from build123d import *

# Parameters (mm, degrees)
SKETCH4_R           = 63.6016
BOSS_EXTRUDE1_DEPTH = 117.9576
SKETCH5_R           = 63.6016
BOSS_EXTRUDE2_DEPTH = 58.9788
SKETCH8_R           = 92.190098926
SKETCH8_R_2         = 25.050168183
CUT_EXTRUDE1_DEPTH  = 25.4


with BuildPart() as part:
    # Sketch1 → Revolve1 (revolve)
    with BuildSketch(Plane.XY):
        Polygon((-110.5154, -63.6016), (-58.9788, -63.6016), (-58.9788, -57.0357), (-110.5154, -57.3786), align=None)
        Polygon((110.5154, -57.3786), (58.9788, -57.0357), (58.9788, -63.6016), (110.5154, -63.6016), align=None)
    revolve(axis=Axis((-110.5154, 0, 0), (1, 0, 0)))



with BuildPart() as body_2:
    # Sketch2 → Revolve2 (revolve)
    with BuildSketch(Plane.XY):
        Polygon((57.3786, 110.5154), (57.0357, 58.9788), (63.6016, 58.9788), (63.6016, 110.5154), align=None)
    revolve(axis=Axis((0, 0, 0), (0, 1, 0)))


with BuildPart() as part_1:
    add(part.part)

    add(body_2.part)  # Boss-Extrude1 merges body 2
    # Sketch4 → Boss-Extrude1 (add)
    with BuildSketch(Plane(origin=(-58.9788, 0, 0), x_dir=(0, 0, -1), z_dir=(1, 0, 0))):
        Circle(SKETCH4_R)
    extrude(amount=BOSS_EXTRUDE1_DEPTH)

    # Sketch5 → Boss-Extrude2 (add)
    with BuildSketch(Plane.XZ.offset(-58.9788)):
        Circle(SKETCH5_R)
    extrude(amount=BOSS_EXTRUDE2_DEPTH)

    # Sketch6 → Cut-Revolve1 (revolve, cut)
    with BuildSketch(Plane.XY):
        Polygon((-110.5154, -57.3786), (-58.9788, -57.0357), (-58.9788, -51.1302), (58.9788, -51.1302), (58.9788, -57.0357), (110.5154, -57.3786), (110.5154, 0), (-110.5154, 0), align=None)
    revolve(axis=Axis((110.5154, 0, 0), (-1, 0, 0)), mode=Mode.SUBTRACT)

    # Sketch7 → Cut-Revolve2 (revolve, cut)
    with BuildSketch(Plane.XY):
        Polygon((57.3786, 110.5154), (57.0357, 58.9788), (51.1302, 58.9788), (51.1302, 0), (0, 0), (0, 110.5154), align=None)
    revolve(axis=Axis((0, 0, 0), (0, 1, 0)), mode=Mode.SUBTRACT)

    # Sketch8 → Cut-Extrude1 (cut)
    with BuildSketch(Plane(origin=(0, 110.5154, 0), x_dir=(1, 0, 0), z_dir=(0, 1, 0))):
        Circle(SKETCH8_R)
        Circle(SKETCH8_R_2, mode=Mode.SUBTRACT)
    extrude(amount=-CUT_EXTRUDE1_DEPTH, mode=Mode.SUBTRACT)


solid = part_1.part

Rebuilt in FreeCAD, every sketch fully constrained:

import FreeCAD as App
import Part
import Sketcher
from FreeCAD import Vector
Q = App.Units.Quantity


def add_polygon(sketch, points):
    """Adds a closed chain of lines whose ends are joined by coincident constraints."""
    first, n = sketch.GeometryCount, len(points)
    for a, b in zip(points, points[1:] + points[:1]):
        sketch.addGeometry(Part.LineSegment(App.Vector(*a, 0), App.Vector(*b, 0)), False)
    for i in range(n):
        sketch.addConstraint(Sketcher.Constraint("Coincident", first + i, 2, first + (i + 1) % n, 1))

doc = App.newDocument("Part")
body = doc.addObject("PartDesign::Body", "Body")
body.AllowCompound = True

sketch1 = doc.addObject("Sketcher::SketchObject", "Sketch")
body.addObject(sketch1)
sketch1.AttachmentSupport = (doc.XY_Plane, [""])
sketch1.MapMode = "FlatFace"
add_polygon(sketch1, [(-111, -64), (-59, -64), (-59, -57), (-111, -57)])
add_polygon(sketch1, [(111, -57), (59, -57), (59, -64), (111, -64)])
sketch1.addConstraint([
    Sketcher.Constraint("Horizontal", 0),
    Sketcher.Constraint("Vertical", 1),
    Sketcher.Constraint("Vertical", 3),
    Sketcher.Constraint("Vertical", 5),
    Sketcher.Constraint("Horizontal", 6),
    Sketcher.Constraint("Vertical", 7),
    Sketcher.Constraint("Symmetric", 1, 2, 4, 2, -2),
    Sketcher.Constraint("Symmetric", 3, 2, 6, 2, -2),
    Sketcher.Constraint("Horizontal", 2, 2, 7, 2),
    Sketcher.Constraint("DistanceX", 0, 1, 0, 2, Q("2.029 in")),
    Sketcher.Constraint("DistanceY", 3, 2, 3, 1, Q("0.245 in")),
    Sketcher.Constraint("DistanceY", 1, 1, 1, 2, Q("0.2585 in")),
    Sketcher.Constraint("DistanceX", 0, 2, -1, 1, Q("2.322 in")),
    Sketcher.Constraint("DistanceY", 0, 2, -1, 1, Q("2.504 in")),
])
revolution = doc.addObject("PartDesign::Revolution", "Revolution")
body.addObject(revolution)
revolution.Profile = sketch1
revolution.ReferenceAxis = (sketch1, ["H_Axis"])
revolution.Angle = 360
body2 = doc.addObject("PartDesign::Body", "Body001")

sketch2 = doc.addObject("Sketcher::SketchObject", "Sketch001")
body2.addObject(sketch2)
sketch2.AttachmentSupport = (doc.getObject("XY_Plane001"), [""])
sketch2.MapMode = "FlatFace"
add_polygon(sketch2, [(57, 111), (57, 59), (64, 59), (64, 111)])
sketch2.addConstraint([
    Sketcher.Constraint("Horizontal", 1),
    Sketcher.Constraint("Vertical", 2),
    Sketcher.Constraint("Horizontal", 3),
    Sketcher.Constraint("DistanceX", 3, 2, 3, 1, Q("0.245 in")),
    Sketcher.Constraint("DistanceY", 2, 1, 2, 2, Q("2.029 in")),
    Sketcher.Constraint("DistanceX", 1, 1, 1, 2, Q("0.2585 in")),
    Sketcher.Constraint("DistanceY", -1, 1, 0, 2, Q("2.322 in")),
    Sketcher.Constraint("DistanceX", -1, 1, 1, 2, Q("2.504 in")),
])
revolution2 = doc.addObject("PartDesign::Revolution", "Revolution001")
body2.addObject(revolution2)
revolution2.Profile = sketch2
revolution2.ReferenceAxis = (sketch2, ["V_Axis"])
revolution2.Angle = 360
doc.recompute()

boolean = doc.addObject("PartDesign::Boolean", "Boolean")
body.addObject(boolean)
boolean.Type = "Fuse"
boolean.addObjects([body2])

sketch3 = doc.addObject("Sketcher::SketchObject", "Sketch002")
body.addObject(sketch3)
sketch3.AttachmentSupport = (doc.YZ_Plane, [""])
sketch3.MapMode = "FlatFace"
sketch3.AttachmentOffset = App.Placement(Vector(0, 0, -2.322 * 25.4), App.Rotation())
sketch3.addGeometry(Part.Circle(Vector(0, 0, 0), Vector(0, 0, 1), 64), False)
sketch3.addConstraint([
    Sketcher.Constraint("Coincident", 0, 3, -1, 1),
    Sketcher.Constraint("Diameter", 0, Q("5.008 in")),
])
pad1 = doc.addObject("PartDesign::Pad", "Pad")
body.addObject(pad1)
pad1.Profile = sketch3
pad1.Length = Q("4.644 in")

sketch4 = doc.addObject("Sketcher::SketchObject", "Sketch003")
body.addObject(sketch4)
sketch4.AttachmentSupport = (doc.XZ_Plane, [""])
sketch4.MapMode = "FlatFace"
sketch4.AttachmentOffset = App.Placement(Vector(0, 0, -2.322 * 25.4), App.Rotation())
sketch4.addGeometry(Part.Circle(Vector(0, 0, 0), Vector(0, 0, 1), 64), False)
sketch4.addConstraint([
    Sketcher.Constraint("Coincident", 0, 3, -1, 1),
    Sketcher.Constraint("Diameter", 0, Q("5.008 in")),
])
pad2 = doc.addObject("PartDesign::Pad", "Pad001")
body.addObject(pad2)
pad2.Profile = sketch4
pad2.Length = Q("2.322 in")

sketch5 = doc.addObject("Sketcher::SketchObject", "Sketch004")
body.addObject(sketch5)
sketch5.AttachmentSupport = (doc.XY_Plane, [""])
sketch5.MapMode = "FlatFace"
add_polygon(sketch5, [(-111, -57), (-59, -57), (-59, -51), (59, -51), (59, -57), (111, -57), (111, 0), (-111, 0)])
sketch5.addConstraint([
    Sketcher.Constraint("Vertical", 1),
    Sketcher.Constraint("Horizontal", 2),
    Sketcher.Constraint("Vertical", 3),
    Sketcher.Constraint("Vertical", 5),
    Sketcher.Constraint("Horizontal", 6),
    Sketcher.Constraint("Vertical", 7),
    Sketcher.Constraint("Symmetric", 5, 2, 6, 2, -1, 1),
    Sketcher.Constraint("Symmetric", 0, 2, 3, 2, -2),
    Sketcher.Constraint("Horizontal", 4, 2, 7, 2),
    Sketcher.Constraint("DistanceX", 2, 1, 2, 2, Q("4.644 in")),
    Sketcher.Constraint("DistanceX", 6, 2, 6, 1, Q("8.702 in")),
    Sketcher.Constraint("DistanceY", 5, 1, 5, 2, Q("2.259 in")),
    Sketcher.Constraint("DistanceY", 1, 1, 1, 2, Q("0.2325 in")),
    Sketcher.Constraint("DistanceY", 1, 2, -1, 1, Q("2.013 in")),
])
groove = doc.addObject("PartDesign::Groove", "Groove")
body.addObject(groove)
groove.Profile = sketch5
groove.ReferenceAxis = (sketch5, ["H_Axis"])
groove.Angle = 360

sketch6 = doc.addObject("Sketcher::SketchObject", "Sketch005")
body.addObject(sketch6)
sketch6.AttachmentSupport = (doc.XY_Plane, [""])
sketch6.MapMode = "FlatFace"
add_polygon(sketch6, [(57, 59), (57, 111), (0, 111), (0, 0), (51, 0), (51, 59)])
sketch6.addConstraint([
    Sketcher.Constraint("Horizontal", 1),
    Sketcher.Constraint("Vertical", 2),
    Sketcher.Constraint("Horizontal", 3),
    Sketcher.Constraint("Vertical", 4),
    Sketcher.Constraint("Horizontal", 5),
    Sketcher.Constraint("Coincident", 2, 2, -1, 1),
    Sketcher.Constraint("DistanceX", 1, 2, 1, 1, Q("2.259 in")),
    Sketcher.Constraint("DistanceX", 3, 1, 3, 2, Q("2.013 in")),
    Sketcher.Constraint("DistanceY", 2, 2, 2, 1, Q("4.351 in")),
    Sketcher.Constraint("DistanceY", 4, 1, 4, 2, Q("2.322 in")),
    Sketcher.Constraint("DistanceX", 5, 1, 5, 2, Q("0.2325 in")),
])
groove2 = doc.addObject("PartDesign::Groove", "Groove001")
body.addObject(groove2)
groove2.Profile = sketch6
groove2.ReferenceAxis = (sketch6, ["V_Axis"])
groove2.Angle = 360

sketch7 = doc.addObject("Sketcher::SketchObject", "Sketch006")
body.addObject(sketch7)
sketch7.AttachmentSupport = (doc.XZ_Plane, [""])
sketch7.MapMode = "FlatFace"
sketch7.AttachmentOffset = App.Placement(Vector(0, 0, -4.351 * 25.4), App.Rotation())
sketch7.addGeometry([
    Part.Circle(Vector(0, 0, 0), Vector(0, 0, 1), 92),
    Part.Circle(Vector(0, 0, 0), Vector(0, 0, 1), 25),
], False)
sketch7.addConstraint([
    Sketcher.Constraint("Coincident", 0, 3, -1, 1),
    Sketcher.Constraint("Coincident", 1, 3, -1, 1),
    Sketcher.Constraint("Diameter", 0, 184.380198),
    Sketcher.Constraint("Diameter", 1, 50.100336),
])
pocket1 = doc.addObject("PartDesign::Pocket", "Pocket")
body.addObject(pocket1)
pocket1.Profile = sketch7
pocket1.Length = Q("1 in")
pocket1.Reversed = True

doc.recompute()
